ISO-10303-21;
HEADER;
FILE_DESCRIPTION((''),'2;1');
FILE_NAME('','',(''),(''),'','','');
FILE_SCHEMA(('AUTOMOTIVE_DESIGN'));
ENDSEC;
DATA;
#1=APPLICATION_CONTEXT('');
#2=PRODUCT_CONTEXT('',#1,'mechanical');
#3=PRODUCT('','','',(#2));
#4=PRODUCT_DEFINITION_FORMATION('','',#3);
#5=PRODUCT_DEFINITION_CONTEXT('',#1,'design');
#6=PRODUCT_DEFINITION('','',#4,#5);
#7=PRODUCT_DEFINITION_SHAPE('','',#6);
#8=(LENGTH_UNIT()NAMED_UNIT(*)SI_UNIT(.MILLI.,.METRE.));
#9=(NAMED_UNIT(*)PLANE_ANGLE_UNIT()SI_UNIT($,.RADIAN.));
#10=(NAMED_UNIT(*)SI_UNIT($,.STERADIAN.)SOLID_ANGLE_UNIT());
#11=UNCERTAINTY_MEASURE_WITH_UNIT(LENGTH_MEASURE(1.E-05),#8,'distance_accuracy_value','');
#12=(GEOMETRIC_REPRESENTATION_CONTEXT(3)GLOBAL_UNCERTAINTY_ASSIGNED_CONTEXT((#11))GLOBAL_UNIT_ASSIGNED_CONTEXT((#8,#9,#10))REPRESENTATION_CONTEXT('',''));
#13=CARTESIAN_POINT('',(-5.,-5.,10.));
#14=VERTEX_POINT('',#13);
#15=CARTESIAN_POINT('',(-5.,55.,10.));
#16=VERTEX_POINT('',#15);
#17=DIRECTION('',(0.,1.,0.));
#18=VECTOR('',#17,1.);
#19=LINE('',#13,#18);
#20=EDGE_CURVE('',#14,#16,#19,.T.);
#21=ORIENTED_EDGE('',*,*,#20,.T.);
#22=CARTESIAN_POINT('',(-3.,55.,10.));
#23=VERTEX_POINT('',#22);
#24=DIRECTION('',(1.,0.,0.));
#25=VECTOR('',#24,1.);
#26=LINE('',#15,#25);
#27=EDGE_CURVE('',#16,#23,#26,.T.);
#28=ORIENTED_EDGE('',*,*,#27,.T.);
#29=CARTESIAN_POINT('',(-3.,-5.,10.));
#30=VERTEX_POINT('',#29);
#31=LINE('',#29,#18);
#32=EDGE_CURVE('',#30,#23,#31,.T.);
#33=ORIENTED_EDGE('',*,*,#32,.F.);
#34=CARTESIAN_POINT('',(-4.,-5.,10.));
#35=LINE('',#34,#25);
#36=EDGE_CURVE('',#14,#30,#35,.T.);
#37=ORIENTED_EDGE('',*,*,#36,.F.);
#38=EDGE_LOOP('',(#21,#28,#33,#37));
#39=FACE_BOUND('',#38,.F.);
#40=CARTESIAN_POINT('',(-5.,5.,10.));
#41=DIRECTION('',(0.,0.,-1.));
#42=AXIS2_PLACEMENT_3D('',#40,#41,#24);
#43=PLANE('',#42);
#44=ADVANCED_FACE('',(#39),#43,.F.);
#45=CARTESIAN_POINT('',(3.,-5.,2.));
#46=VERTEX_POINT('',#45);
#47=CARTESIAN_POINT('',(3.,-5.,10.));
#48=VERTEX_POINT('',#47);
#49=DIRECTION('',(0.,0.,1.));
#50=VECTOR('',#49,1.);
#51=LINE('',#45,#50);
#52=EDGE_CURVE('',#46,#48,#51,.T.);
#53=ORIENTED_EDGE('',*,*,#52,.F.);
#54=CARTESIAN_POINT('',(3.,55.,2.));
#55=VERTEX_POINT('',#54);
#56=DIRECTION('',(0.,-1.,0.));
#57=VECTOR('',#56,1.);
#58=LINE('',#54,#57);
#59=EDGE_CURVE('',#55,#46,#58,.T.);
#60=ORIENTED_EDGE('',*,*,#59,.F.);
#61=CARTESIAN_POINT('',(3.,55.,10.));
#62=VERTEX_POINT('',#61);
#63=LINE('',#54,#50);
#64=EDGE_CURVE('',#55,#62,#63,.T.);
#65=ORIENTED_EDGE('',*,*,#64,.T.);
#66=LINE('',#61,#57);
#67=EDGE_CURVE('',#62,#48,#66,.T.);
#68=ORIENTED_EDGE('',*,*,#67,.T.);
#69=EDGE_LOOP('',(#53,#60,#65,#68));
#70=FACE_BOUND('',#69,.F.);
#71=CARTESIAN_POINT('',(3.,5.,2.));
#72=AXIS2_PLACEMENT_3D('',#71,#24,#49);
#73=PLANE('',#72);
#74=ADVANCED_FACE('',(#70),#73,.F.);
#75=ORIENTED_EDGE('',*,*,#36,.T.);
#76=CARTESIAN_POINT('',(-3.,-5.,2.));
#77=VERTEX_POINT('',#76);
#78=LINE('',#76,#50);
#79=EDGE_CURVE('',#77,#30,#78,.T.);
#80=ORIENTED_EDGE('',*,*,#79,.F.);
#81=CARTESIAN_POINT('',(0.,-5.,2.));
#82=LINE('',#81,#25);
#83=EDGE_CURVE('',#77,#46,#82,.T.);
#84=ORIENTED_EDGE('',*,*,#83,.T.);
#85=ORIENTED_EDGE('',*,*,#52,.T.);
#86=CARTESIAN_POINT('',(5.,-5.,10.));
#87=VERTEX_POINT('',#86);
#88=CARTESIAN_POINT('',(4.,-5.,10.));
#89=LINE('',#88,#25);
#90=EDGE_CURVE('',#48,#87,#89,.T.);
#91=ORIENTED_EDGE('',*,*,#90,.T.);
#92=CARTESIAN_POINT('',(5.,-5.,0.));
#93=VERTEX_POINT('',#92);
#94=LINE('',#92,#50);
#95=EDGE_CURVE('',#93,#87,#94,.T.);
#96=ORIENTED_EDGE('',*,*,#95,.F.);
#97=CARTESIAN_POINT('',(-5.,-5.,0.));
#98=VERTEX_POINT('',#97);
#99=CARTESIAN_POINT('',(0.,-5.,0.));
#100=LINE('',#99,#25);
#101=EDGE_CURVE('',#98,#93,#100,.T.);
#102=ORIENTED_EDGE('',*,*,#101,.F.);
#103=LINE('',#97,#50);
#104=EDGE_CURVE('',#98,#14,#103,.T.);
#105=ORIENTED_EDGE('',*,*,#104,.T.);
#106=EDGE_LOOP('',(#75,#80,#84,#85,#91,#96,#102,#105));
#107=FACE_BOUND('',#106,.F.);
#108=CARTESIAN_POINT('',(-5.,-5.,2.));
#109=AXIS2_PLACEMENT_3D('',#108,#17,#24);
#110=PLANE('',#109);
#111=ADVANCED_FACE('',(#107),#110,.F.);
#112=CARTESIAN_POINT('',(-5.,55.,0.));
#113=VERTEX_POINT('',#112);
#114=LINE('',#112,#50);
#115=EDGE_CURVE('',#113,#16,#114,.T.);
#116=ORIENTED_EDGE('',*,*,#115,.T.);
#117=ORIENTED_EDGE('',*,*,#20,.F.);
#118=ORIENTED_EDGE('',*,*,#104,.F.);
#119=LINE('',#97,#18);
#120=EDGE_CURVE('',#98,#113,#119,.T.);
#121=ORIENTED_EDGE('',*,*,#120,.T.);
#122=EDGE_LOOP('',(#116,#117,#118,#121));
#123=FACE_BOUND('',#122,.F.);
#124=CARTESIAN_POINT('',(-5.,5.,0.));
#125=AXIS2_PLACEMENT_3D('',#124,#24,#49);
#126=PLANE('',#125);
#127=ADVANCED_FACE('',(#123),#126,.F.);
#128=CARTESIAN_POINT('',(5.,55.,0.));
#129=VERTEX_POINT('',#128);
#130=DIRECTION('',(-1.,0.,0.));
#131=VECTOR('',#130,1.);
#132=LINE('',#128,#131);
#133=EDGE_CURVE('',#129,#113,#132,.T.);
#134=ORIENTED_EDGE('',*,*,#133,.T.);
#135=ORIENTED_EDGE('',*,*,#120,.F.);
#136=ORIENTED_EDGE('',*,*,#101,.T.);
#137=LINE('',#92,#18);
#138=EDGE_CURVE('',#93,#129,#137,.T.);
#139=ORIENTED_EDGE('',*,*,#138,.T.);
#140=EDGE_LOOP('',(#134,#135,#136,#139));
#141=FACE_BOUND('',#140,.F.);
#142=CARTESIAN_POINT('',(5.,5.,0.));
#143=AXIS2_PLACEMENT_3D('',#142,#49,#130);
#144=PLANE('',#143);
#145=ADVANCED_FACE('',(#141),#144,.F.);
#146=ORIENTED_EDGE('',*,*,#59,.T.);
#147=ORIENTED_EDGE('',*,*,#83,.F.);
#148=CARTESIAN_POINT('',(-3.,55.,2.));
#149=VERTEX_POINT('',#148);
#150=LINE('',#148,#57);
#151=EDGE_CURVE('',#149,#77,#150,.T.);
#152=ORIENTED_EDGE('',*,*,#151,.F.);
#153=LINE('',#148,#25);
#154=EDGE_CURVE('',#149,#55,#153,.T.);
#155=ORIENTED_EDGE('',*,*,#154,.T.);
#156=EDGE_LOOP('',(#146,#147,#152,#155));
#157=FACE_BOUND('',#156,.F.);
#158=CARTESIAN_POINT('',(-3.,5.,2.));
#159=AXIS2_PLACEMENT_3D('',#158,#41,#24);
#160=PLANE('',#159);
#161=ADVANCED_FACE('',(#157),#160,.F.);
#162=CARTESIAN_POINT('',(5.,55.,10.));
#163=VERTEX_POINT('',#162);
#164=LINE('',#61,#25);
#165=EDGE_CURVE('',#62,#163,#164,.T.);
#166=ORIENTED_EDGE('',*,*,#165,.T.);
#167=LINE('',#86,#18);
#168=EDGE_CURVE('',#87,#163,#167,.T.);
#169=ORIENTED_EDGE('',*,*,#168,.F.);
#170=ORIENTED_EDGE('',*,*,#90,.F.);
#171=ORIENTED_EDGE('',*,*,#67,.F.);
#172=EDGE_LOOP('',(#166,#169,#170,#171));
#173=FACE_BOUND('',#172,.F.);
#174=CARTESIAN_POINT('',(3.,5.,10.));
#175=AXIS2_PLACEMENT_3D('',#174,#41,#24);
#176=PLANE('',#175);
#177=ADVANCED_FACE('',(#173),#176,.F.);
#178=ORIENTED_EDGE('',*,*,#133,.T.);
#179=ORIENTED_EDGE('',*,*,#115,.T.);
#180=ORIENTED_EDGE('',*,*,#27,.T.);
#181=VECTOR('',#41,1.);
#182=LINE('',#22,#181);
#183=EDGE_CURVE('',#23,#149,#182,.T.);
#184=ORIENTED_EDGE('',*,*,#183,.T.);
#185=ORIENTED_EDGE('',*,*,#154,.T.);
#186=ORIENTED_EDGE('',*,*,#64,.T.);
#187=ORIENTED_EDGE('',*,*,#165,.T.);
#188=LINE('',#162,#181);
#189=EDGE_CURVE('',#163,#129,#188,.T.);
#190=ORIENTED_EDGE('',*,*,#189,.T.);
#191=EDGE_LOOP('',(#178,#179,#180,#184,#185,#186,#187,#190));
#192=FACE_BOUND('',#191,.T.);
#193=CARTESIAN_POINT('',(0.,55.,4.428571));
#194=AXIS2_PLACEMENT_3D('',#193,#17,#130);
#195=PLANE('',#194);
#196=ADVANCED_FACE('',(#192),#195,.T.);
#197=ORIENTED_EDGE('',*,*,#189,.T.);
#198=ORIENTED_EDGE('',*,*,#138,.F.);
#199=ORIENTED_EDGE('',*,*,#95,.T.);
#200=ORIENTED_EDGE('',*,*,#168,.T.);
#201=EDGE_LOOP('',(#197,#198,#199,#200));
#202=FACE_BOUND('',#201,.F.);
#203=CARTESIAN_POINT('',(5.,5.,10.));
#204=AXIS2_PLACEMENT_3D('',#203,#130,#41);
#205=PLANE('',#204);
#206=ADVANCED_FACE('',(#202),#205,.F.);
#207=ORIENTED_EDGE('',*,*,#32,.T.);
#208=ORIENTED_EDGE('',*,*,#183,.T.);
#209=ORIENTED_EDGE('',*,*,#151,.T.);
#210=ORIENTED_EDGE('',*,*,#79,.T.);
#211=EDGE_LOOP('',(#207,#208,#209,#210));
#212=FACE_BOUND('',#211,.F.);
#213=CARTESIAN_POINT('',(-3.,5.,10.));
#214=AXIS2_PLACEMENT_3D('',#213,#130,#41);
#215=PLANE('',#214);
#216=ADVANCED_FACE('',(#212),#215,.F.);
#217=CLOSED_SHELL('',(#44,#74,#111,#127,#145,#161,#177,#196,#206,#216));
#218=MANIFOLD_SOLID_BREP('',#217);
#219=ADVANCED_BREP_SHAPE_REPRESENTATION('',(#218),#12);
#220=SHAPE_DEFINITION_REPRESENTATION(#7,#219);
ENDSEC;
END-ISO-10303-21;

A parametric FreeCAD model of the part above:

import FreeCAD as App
import Part
import Sketcher


def add_polygon(sketch, points):
    """Adds a closed chain of lines whose ends are joined by coincident constraints."""
    first, n = sketch.GeometryCount, len(points)
    for a, b in zip(points, points[1:] + points[:1]):
        sketch.addGeometry(Part.LineSegment(App.Vector(*a, 0), App.Vector(*b, 0)), False)
    for i in range(n):
        sketch.addConstraint(Sketcher.Constraint("Coincident", first + i, 2, first + (i + 1) % n, 1))

doc = App.newDocument("Part")
body = doc.addObject("PartDesign::Body", "Body")

# Sketch on XY plane
sketch1 = doc.addObject("Sketcher::SketchObject", "Sketch")
body.addObject(sketch1)
sketch1.AttachmentSupport = (doc.XY_Plane, [""])
sketch1.MapMode = "FlatFace"
add_polygon(sketch1, [(-5, 5), (-5, -5), (5, -5), (5, 5)])  # lines 0-3
sketch1.addConstraint([
    Sketcher.Constraint("Vertical", 0),
    Sketcher.Constraint("Horizontal", 1),
    Sketcher.Constraint("Vertical", 2),
    Sketcher.Constraint("Horizontal", 3),
    Sketcher.Constraint("Symmetric", 0, 2, 2, 2, -1, 1),
    Sketcher.Constraint("Equal", 3, 0),
    Sketcher.Constraint("DistanceX", 1, 1, 1, 2, 10.0),
])
pad1 = doc.addObject("PartDesign::Pad", "Pad")
body.addObject(pad1)
pad1.Profile = sketch1
pad1.Length = 2

# Sketch on XY plane
sketch2 = doc.addObject("Sketcher::SketchObject", "Sketch001")
body.addObject(sketch2)
sketch2.AttachmentSupport = (doc.XY_Plane, [""])
sketch2.MapMode = "FlatFace"
sketch2.AttachmentOffset = App.Placement(App.Vector(0, 0, 2), App.Rotation())
add_polygon(sketch2, [(-5, 5), (-5, -5), (-3, -5), (-3, 5)])  # lines 0-3
add_polygon(sketch2, [(3, 5), (3, -5), (5, -5), (5, 5)])  # lines 4-7
sketch2.addConstraint([
    Sketcher.Constraint("Vertical", 0),
    Sketcher.Constraint("Horizontal", 1),
    Sketcher.Constraint("Vertical", 2),
    Sketcher.Constraint("Horizontal", 3),
    Sketcher.Constraint("Vertical", 4),
    Sketcher.Constraint("Horizontal", 5),
    Sketcher.Constraint("Vertical", 6),
    Sketcher.Constraint("Horizontal", 7),
    Sketcher.Constraint("Symmetric", 2, 2, 4, 2, -1, 1),
    Sketcher.Constraint("Symmetric", 0, 2, 6, 2, -1, 1),
    Sketcher.Constraint("Horizontal", 1, 2, 4, 2),
    Sketcher.Constraint("DistanceX", 1, 1, 1, 2, 2.0),
    Sketcher.Constraint("DistanceY", 0, 2, 0, 1, 10.0),
    Sketcher.Constraint("DistanceX", 0, 2, -1, 1, 5.0),
])
pad2 = doc.addObject("PartDesign::Pad", "Pad001")
body.addObject(pad2)
pad2.Profile = sketch2
pad2.Length = 8

# Sketch on XZ plane
sketch3 = doc.addObject("Sketcher::SketchObject", "Sketch002")
body.addObject(sketch3)
sketch3.AttachmentSupport = (doc.XZ_Plane, [""])
sketch3.MapMode = "FlatFace"
sketch3.AttachmentOffset = App.Placement(App.Vector(0, 0, -5), App.Rotation())
add_polygon(sketch3, [(3, 10), (5, 10), (5, 0), (-5, 0), (-5, 10), (-3, 10), (-3, 2), (3, 2)])  # lines 0-7
sketch3.addConstraint([
    Sketcher.Constraint("Horizontal", 0),
    Sketcher.Constraint("Vertical", 1),
    Sketcher.Constraint("Horizontal", 2),
    Sketcher.Constraint("Vertical", 3),
    Sketcher.Constraint("Horizontal", 4),
    Sketcher.Constraint("Vertical", 5),
    Sketcher.Constraint("Horizontal", 6),
    Sketcher.Constraint("Vertical", 7),
    Sketcher.Constraint("Symmetric", 1, 2, 2, 2, -1, 1),
    Sketcher.Constraint("Symmetric", 4, 2, 7, 2, -2),
    Sketcher.Constraint("Equal", 2, 1),
    Sketcher.Constraint("DistanceX", 0, 1, 0, 2, 2.0),
    Sketcher.Constraint("DistanceX", 2, 2, 2, 1, 10.0),
    Sketcher.Constraint("DistanceY", 5, 2, 5, 1, 8.0),
])
pad3 = doc.addObject("PartDesign::Pad", "Pad002")
body.addObject(pad3)
pad3.Profile = sketch3
pad3.Length = 50
pad3.Reversed = True

doc.recompute()
